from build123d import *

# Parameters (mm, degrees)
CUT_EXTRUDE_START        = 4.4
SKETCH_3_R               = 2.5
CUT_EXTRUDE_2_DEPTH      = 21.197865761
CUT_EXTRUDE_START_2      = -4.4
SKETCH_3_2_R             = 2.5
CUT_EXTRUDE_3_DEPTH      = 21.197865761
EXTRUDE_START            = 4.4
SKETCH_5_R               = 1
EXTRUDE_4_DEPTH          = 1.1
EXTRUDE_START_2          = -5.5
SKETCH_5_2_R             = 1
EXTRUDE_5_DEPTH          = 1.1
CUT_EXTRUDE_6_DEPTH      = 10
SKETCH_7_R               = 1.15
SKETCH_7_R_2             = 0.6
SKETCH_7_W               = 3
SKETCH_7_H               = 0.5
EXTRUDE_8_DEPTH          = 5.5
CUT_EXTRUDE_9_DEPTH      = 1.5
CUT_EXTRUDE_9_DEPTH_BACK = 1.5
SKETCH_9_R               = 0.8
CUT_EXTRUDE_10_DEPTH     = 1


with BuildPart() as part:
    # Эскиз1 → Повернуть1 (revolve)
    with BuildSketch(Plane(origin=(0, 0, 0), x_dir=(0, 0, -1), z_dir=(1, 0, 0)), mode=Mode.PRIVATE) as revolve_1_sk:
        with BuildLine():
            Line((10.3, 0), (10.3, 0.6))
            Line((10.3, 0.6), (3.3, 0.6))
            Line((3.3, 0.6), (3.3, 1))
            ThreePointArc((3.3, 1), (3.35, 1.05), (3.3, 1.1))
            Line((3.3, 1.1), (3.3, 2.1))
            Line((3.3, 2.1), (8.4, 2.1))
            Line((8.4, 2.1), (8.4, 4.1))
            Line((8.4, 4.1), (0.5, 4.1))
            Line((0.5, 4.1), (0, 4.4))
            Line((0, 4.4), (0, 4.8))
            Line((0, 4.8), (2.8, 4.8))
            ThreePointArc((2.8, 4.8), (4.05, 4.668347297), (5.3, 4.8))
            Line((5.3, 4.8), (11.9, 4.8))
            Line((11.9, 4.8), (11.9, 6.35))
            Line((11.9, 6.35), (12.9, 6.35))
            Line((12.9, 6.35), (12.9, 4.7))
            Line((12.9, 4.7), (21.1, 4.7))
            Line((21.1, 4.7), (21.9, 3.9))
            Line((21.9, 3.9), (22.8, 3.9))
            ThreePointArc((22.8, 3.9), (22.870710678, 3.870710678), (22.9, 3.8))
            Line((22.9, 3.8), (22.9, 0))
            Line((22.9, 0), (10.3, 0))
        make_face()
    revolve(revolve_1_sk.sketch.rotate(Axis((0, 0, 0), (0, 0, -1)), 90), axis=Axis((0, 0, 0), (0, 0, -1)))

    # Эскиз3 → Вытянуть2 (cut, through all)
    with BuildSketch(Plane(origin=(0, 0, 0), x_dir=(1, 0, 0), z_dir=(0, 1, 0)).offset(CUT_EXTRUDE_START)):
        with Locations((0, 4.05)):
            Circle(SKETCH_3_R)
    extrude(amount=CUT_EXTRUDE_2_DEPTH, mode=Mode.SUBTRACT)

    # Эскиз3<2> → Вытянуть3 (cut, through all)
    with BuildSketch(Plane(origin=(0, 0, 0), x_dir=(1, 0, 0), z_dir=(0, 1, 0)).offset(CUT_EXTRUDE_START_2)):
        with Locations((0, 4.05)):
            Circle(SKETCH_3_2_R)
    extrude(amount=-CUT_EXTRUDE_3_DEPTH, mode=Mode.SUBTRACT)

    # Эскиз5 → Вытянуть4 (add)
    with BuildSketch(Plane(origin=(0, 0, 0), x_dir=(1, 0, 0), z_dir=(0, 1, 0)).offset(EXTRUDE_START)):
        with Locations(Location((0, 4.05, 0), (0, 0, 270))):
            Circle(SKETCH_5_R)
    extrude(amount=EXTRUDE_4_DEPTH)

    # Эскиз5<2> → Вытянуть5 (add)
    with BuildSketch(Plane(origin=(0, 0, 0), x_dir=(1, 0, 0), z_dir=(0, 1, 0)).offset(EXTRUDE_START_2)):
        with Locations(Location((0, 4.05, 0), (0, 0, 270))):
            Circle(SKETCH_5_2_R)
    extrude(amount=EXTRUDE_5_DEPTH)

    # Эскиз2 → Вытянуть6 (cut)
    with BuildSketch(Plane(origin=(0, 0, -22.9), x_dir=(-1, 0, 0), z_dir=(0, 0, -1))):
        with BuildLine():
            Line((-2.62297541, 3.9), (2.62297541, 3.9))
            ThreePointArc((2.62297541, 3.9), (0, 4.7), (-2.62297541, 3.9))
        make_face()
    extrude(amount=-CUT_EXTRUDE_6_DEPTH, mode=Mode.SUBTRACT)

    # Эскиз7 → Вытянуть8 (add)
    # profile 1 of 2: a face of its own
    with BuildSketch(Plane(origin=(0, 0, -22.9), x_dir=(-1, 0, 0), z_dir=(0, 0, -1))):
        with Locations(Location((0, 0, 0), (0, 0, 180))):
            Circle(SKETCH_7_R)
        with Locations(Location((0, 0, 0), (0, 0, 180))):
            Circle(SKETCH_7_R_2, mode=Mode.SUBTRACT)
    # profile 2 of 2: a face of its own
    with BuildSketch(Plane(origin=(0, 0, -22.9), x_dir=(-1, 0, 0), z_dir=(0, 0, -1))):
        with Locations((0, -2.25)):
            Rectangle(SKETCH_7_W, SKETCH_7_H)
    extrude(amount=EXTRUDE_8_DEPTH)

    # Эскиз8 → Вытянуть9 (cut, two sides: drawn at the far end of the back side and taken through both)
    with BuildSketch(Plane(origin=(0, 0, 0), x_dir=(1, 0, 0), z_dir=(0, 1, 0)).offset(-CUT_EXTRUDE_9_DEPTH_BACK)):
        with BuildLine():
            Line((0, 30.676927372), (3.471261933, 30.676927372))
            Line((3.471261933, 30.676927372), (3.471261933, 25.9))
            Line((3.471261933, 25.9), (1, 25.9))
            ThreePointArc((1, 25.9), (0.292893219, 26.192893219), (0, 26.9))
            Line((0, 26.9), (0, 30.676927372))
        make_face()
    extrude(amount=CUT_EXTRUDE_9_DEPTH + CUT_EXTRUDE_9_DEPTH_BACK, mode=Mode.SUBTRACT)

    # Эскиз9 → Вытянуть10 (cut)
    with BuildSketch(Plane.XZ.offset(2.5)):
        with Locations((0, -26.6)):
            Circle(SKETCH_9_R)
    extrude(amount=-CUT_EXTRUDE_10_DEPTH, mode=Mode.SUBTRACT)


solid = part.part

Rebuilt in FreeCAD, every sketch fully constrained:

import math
import FreeCAD as App
import Part
import Sketcher
Q = App.Units.Quantity

doc = App.newDocument("Part")
params = doc.addObject("Spreadsheet::Sheet", "Params")
for row, (alias, value) in enumerate([
    ("sketch1_radius", "6 mm"),
    ("sketch1_radius2", "0.1 mm"),
    ("sketch1_width", "2 mm"),
    ("sketch1_width2", "1 mm"),
    ("sketch1_height", "7 mm"),
    ("revolution_angle", "360 deg"),
    ("sketch2_diameter", "5 mm"),
    ("sketch3_diameter", "5 mm"),
    ("sketch4_diameter", "2 mm"),
    ("pad1_length", "1.1 mm"),
    ("sketch5_diameter", "2 mm"),
    ("pad2_length", "1.1 mm"),
    ("sketch6_radius", "4.7 mm"),
    ("pocket3_length", "10 mm"),
    ("sketch7_diameter", "2.3 mm"),
    ("sketch7_diameter2", "1.2 mm"),
    ("sketch7_width", "3 mm"),
    ("sketch7_height", "0.5 mm"),
    ("pad3_length", "5.5 mm"),
    ("sketch8_radius", "1 mm"),
    ("pocket4_length", "1.5 mm"),
    ("pocket4_length2", "1.5 mm"),
    ("sketch9_diameter", "1.6 mm"),
    ("pocket5_length", "1 mm"),
], start=1):
    params.set(f"A{row}", alias)
    params.set(f"B{row}", "=" + value)
    params.setAlias(f"B{row}", alias)

body = doc.addObject("PartDesign::Body", "Body")

# Sketch on YZ plane
sketch1 = body.newObject("Sketcher::SketchObject", "Sketch")
sketch1.AttachmentSupport = (doc.getObject("YZ_Plane"), [""])
sketch1.MapMode = "FlatFace"
sketch1.addGeometry([
    Part.LineSegment(App.Vector(0.6, -10.3, 0), App.Vector(0, -10.3, 0)),  # 0
    Part.LineSegment(App.Vector(0, -10.3, 0), App.Vector(0, -22.9, 0)),  # 1
    Part.LineSegment(App.Vector(0, -22.9, 0), App.Vector(3.8, -22.9, 0)),  # 2
    Part.ArcOfCircle(Part.Circle(App.Vector(3.8, -22.8, 0), App.Vector(0, 0, 1), 0.1), math.radians(-90), math.radians(0)),  # 3
    Part.LineSegment(App.Vector(3.9, -22.8, 0), App.Vector(3.9, -21.9, 0)),  # 4
    Part.LineSegment(App.Vector(3.9, -21.9, 0), App.Vector(4.7, -21.1, 0)),  # 5
    Part.LineSegment(App.Vector(4.7, -21.1, 0), App.Vector(4.7, -12.9, 0)),  # 6
    Part.LineSegment(App.Vector(4.7, -12.9, 0), App.Vector(6.35, -12.9, 0)),  # 7
    Part.LineSegment(App.Vector(6.35, -12.9, 0), App.Vector(6.35, -11.9, 0)),  # 8
    Part.LineSegment(App.Vector(6.35, -11.9, 0), App.Vector(4.8, -11.9, 0)),  # 9
    Part.LineSegment(App.Vector(4.8, -11.9, 0), App.Vector(4.8, -5.3, 0)),  # 10
    Part.ArcOfCircle(Part.Circle(App.Vector(10.67, -4.05, 0), App.Vector(0, 0, 1), 6), math.radians(168), math.radians(192)),  # 11
    Part.LineSegment(App.Vector(4.8, -2.8, 0), App.Vector(4.8, 0, 0)),  # 12
    Part.LineSegment(App.Vector(4.8, 0, 0), App.Vector(4.4, 0, 0)),  # 13
    Part.LineSegment(App.Vector(4.4, 0, 0), App.Vector(4.1, -0.5, 0)),  # 14
    Part.LineSegment(App.Vector(4.1, -0.5, 0), App.Vector(4.1, -8.4, 0)),  # 15
    Part.LineSegment(App.Vector(4.1, -8.4, 0), App.Vector(2.1, -8.4, 0)),  # 16
    Part.LineSegment(App.Vector(2.1, -8.4, 0), App.Vector(2.1, -3.3, 0)),  # 17
    Part.LineSegment(App.Vector(2.1, -3.3, 0), App.Vector(1.1, -3.3, 0)),  # 18
    Part.ArcOfCircle(Part.Circle(App.Vector(1.05, -3.3, 0), App.Vector(0, 0, 1), 0.05), math.radians(180), math.radians(360)),  # 19
    Part.LineSegment(App.Vector(1, -3.3, 0), App.Vector(0.6, -3.3, 0)),  # 20
    Part.LineSegment(App.Vector(0.6, -3.3, 0), App.Vector(0.6, -10.3, 0)),  # 21
], False)
sketch1.addConstraint([
    Sketcher.Constraint("Coincident", 0, 2, 1, 1),
    Sketcher.Constraint("Coincident", 1, 2, 2, 1),
    Sketcher.Constraint("Tangent", 2, 2, 3, 1),
    Sketcher.Constraint("Tangent", 3, 2, 4, 1),
    Sketcher.Constraint("Coincident", 4, 2, 5, 1),
    Sketcher.Constraint("Coincident", 5, 2, 6, 1),
    Sketcher.Constraint("Coincident", 6, 2, 7, 1),
    Sketcher.Constraint("Coincident", 7, 2, 8, 1),
    Sketcher.Constraint("Coincident", 8, 2, 9, 1),
    Sketcher.Constraint("Coincident", 9, 2, 10, 1),
    Sketcher.Constraint("Coincident", 10, 2, 11, 2),
    Sketcher.Constraint("Coincident", 11, 1, 12, 1),
    Sketcher.Constraint("Coincident", 12, 2, 13, 1),
    Sketcher.Constraint("Coincident", 13, 2, 14, 1),
    Sketcher.Constraint("Coincident", 14, 2, 15, 1),
    Sketcher.Constraint("Coincident", 15, 2, 16, 1),
    Sketcher.Constraint("Coincident", 16, 2, 17, 1),
    Sketcher.Constraint("Coincident", 17, 2, 18, 1),
    Sketcher.Constraint("Coincident", 18, 2, 19, 2),
    Sketcher.Constraint("Coincident", 19, 1, 20, 1),
    Sketcher.Constraint("Coincident", 20, 2, 21, 1),
    Sketcher.Constraint("Coincident", 21, 2, 0, 1),
    Sketcher.Constraint("Horizontal", 0),
    Sketcher.Constraint("Vertical", 1),
    Sketcher.Constraint("Horizontal", 2),
    Sketcher.Constraint("Vertical", 4),
    Sketcher.Constraint("Vertical", 6),
    Sketcher.Constraint("Horizontal", 7),
    Sketcher.Constraint("Vertical", 8),
    Sketcher.Constraint("Horizontal", 9),
    Sketcher.Constraint("Vertical", 10),
    Sketcher.Constraint("Vertical", 12),
    Sketcher.Constraint("Horizontal", 13),
    Sketcher.Constraint("Vertical", 15),
    Sketcher.Constraint("Horizontal", 16),
    Sketcher.Constraint("Vertical", 17),
    Sketcher.Constraint("Horizontal", 18),
    Sketcher.Constraint("Horizontal", 20),
    Sketcher.Constraint("Vertical", 21),
    Sketcher.Constraint("PointOnObject", 0, 2, -2),
    Sketcher.Constraint("PointOnObject", 12, 2, -1),
    Sketcher.Constraint("Horizontal", 19, 3, 17, 2),
    Sketcher.Constraint("Horizontal", 18, 2, 19, 1),
    Sketcher.Constraint("Vertical", 10, 2, 11, 1),
    Sketcher.Constraint("Equal", 13, 20),
    Sketcher.Constraint("Equal", 18, 8),
    Sketcher.Constraint("Radius", 11, Q("6 mm")),
    Sketcher.Constraint("Radius", 3, Q("0.1 mm")),
    Sketcher.Constraint("DistanceX", 16, 2, 16, 1, Q("2 mm")),
    Sketcher.Constraint("DistanceX", 18, 2, 18, 1, Q("1 mm")),
    Sketcher.Constraint("DistanceY", 21, 2, 21, 1, Q("7 mm")),
    Sketcher.Constraint("Angle", 5, Q("45 deg")),
    Sketcher.Constraint("Radius", 19, Q("0.05 mm")),
    Sketcher.Constraint("DistanceX", 0, 2, 0, 1, Q("0.6 mm")),
    Sketcher.Constraint("DistanceX", 2, 1, 2, 2, Q("3.8 mm")),
    Sketcher.Constraint("DistanceX", 13, 2, 13, 1, Q("0.4 mm")),
    Sketcher.Constraint("DistanceY", 1, 2, 1, 1, Q("12.6 mm")),
    Sketcher.Constraint("DistanceY", 4, 1, 4, 2, Q("0.9 mm")),
    Sketcher.Constraint("DistanceY", 6, 1, 6, 2, Q("8.2 mm")),
    Sketcher.Constraint("DistanceY", 10, 1, 10, 2, Q("6.6 mm")),
    Sketcher.Constraint("DistanceY", 12, 1, 12, 2, Q("2.8 mm")),
    Sketcher.Constraint("DistanceY", 15, 2, 15, 1, Q("7.9 mm")),
    Sketcher.Constraint("DistanceY", 17, 1, 17, 2, Q("5.1 mm")),
    Sketcher.Constraint("DistanceY", 4, 2, 6, 2, Q("9 mm")),
    Sketcher.Constraint("DistanceX", 7, 1, 7, 2, Q("1.65 mm")),
    Sketcher.Constraint("DistanceX", 9, 2, 9, 1, Q("1.55 mm")),
    Sketcher.Constraint("DistanceY", 3, 3, -1, 1, Q("22.8 mm")),
])
sketch1.setExpression("Constraints[46]", "Params.sketch1_radius")
sketch1.setExpression("Constraints[47]", "Params.sketch1_radius2")
sketch1.setExpression("Constraints[48]", "Params.sketch1_width")
sketch1.setExpression("Constraints[49]", "Params.sketch1_width2")
sketch1.setExpression("Constraints[50]", "Params.sketch1_height")
revolution = body.newObject("PartDesign::Revolution", "Revolution")
revolution.Profile = sketch1
revolution.ReferenceAxis = (sketch1, ["V_Axis"])
revolution.setExpression("Angle", "Params.revolution_angle")

# Sketch on XZ plane
sketch2 = body.newObject("Sketcher::SketchObject", "Sketch001")
sketch2.AttachmentSupport = (doc.getObject("XZ_Plane"), [""])
sketch2.MapMode = "FlatFace"
sketch2.AttachmentOffset = App.Placement(App.Vector(0, 0, -4.4), App.Rotation())
sketch2.addGeometry(Part.Circle(App.Vector(0, -4, 0), App.Vector(0, 0, 1), 2.5), False)
sketch2.addConstraint([
    Sketcher.Constraint("PointOnObject", 0, 3, -2),
    Sketcher.Constraint("Diameter", 0, Q("5 mm")),
    Sketcher.Constraint("DistanceY", 0, 3, -1, 1, Q("4.05 mm")),
])
sketch2.setExpression("Constraints[1]", "Params.sketch2_diameter")
pocket1 = body.newObject("PartDesign::Pocket", "Pocket")
pocket1.Profile = sketch2
pocket1.Type = "ThroughAll"

# Sketch on XZ plane
sketch3 = body.newObject("Sketcher::SketchObject", "Sketch002")
sketch3.AttachmentSupport = (doc.getObject("XZ_Plane"), [""])
sketch3.MapMode = "FlatFace"
sketch3.AttachmentOffset = App.Placement(App.Vector(0, 0, 4.4), App.Rotation())
sketch3.addGeometry(Part.Circle(App.Vector(0, -4, 0), App.Vector(0, 0, 1), 2.5), False)
sketch3.addConstraint([
    Sketcher.Constraint("PointOnObject", 0, 3, -2),
    Sketcher.Constraint("Diameter", 0, Q("5 mm")),
    Sketcher.Constraint("DistanceY", 0, 3, -1, 1, Q("4.05 mm")),
])
sketch3.setExpression("Constraints[1]", "Params.sketch3_diameter")
pocket2 = body.newObject("PartDesign::Pocket", "Pocket001")
pocket2.Profile = sketch3
pocket2.Type = "ThroughAll"
pocket2.Reversed = True

# Sketch on XZ plane
sketch4 = body.newObject("Sketcher::SketchObject", "Sketch003")
sketch4.AttachmentSupport = (doc.getObject("XZ_Plane"), [""])
sketch4.MapMode = "FlatFace"
sketch4.AttachmentOffset = App.Placement(App.Vector(0, 0, -4.4), App.Rotation())
sketch4.addGeometry(Part.Circle(App.Vector(0, -4, 0), App.Vector(0, 0, 1), 1), False)
sketch4.addConstraint([
    Sketcher.Constraint("PointOnObject", 0, 3, -2),
    Sketcher.Constraint("Diameter", 0, Q("2 mm")),
    Sketcher.Constraint("DistanceY", 0, 3, -1, 1, Q("4.05 mm")),
])
sketch4.setExpression("Constraints[1]", "Params.sketch4_diameter")
pad1 = body.newObject("PartDesign::Pad", "Pad")
pad1.Profile = sketch4
pad1.setExpression("Length", "Params.pad1_length")
pad1.Reversed = True

# Sketch on XZ plane
sketch5 = body.newObject("Sketcher::SketchObject", "Sketch004")
sketch5.AttachmentSupport = (doc.getObject("XZ_Plane"), [""])
sketch5.MapMode = "FlatFace"
sketch5.AttachmentOffset = App.Placement(App.Vector(0, 0, 5.5), App.Rotation())
sketch5.addGeometry(Part.Circle(App.Vector(0, -4, 0), App.Vector(0, 0, 1), 1), False)
sketch5.addConstraint([
    Sketcher.Constraint("PointOnObject", 0, 3, -2),
    Sketcher.Constraint("Diameter", 0, Q("2 mm")),
    Sketcher.Constraint("DistanceY", 0, 3, -1, 1, Q("4.05 mm")),
])
sketch5.setExpression("Constraints[1]", "Params.sketch5_diameter")
pad2 = body.newObject("PartDesign::Pad", "Pad001")
pad2.Profile = sketch5
pad2.setExpression("Length", "Params.pad2_length")
pad2.Reversed = True

# Sketch on XY plane
sketch6 = body.newObject("Sketcher::SketchObject", "Sketch005")
sketch6.AttachmentSupport = (doc.getObject("XY_Plane"), [""])
sketch6.MapMode = "FlatFace"
sketch6.AttachmentOffset = App.Placement(App.Vector(0, 0, -22.9), App.Rotation())
sketch6.addGeometry([
    Part.LineSegment(App.Vector(2.6, 3.9, 0), App.Vector(-2.6, 3.9, 0)),
    Part.ArcOfCircle(Part.Circle(App.Vector(0, 0, 0), App.Vector(0, 0, 1), 4.7), math.radians(56), math.radians(124)),
], False)
sketch6.addConstraint([
    Sketcher.Constraint("Coincident", 0, 1, 1, 1),
    Sketcher.Constraint("Coincident", 1, 2, 0, 2),
    Sketcher.Constraint("Horizontal", 0),
    Sketcher.Constraint("Coincident", 1, 3, -1, 1),
    Sketcher.Constraint("Radius", 1, Q("4.7 mm")),
    Sketcher.Constraint("DistanceY", -1, 1, 0, 1, Q("3.9 mm")),
])
sketch6.setExpression("Constraints[4]", "Params.sketch6_radius")
pocket3 = body.newObject("PartDesign::Pocket", "Pocket002")
pocket3.Profile = sketch6
pocket3.setExpression("Length", "Params.pocket3_length")
pocket3.Reversed = True

# Sketch on XY plane
sketch7 = body.newObject("Sketcher::SketchObject", "Sketch006")
sketch7.AttachmentSupport = (doc.getObject("XY_Plane"), [""])
sketch7.MapMode = "FlatFace"
sketch7.AttachmentOffset = App.Placement(App.Vector(0, 0, -22.9), App.Rotation())
sketch7.addGeometry([
    Part.Circle(App.Vector(0, 0, 0), App.Vector(0, 0, 1), 1.1),  # 0
    Part.Circle(App.Vector(0, 0, 0), App.Vector(0, 0, 1), 0.6),  # 1
    Part.LineSegment(App.Vector(1.5, -2, 0), App.Vector(1.5, -2.5, 0)),  # 2
    Part.LineSegment(App.Vector(1.5, -2.5, 0), App.Vector(-1.5, -2.5, 0)),  # 3
    Part.LineSegment(App.Vector(-1.5, -2.5, 0), App.Vector(-1.5, -2, 0)),  # 4
    Part.LineSegment(App.Vector(-1.5, -2, 0), App.Vector(1.5, -2, 0)),  # 5
], False)
sketch7.addConstraint([
    Sketcher.Constraint("Coincident", 2, 2, 3, 1),
    Sketcher.Constraint("Coincident", 3, 2, 4, 1),
    Sketcher.Constraint("Coincident", 4, 2, 5, 1),
    Sketcher.Constraint("Coincident", 5, 2, 2, 1),
    Sketcher.Constraint("Vertical", 2),
    Sketcher.Constraint("Horizontal", 3),
    Sketcher.Constraint("Vertical", 4),
    Sketcher.Constraint("Horizontal", 5),
    Sketcher.Constraint("Coincident", 0, 3, -1, 1),
    Sketcher.Constraint("Coincident", 1, 3, -1, 1),
    Sketcher.Constraint("Diameter", 0, Q("2.3 mm")),
    Sketcher.Constraint("Diameter", 1, Q("1.2 mm")),
    Sketcher.Constraint("DistanceX", 3, 2, 3, 1, Q("3 mm")),
    Sketcher.Constraint("DistanceY", 2, 2, 2, 1, Q("0.5 mm")),
    Sketcher.Constraint("DistanceY", 4, 2, -1, 1, Q("2 mm")),
    Sketcher.Constraint("DistanceX", -1, 1, 2, 2, Q("1.5 mm")),
])
sketch7.setExpression("Constraints[10]", "Params.sketch7_diameter")
sketch7.setExpression("Constraints[11]", "Params.sketch7_diameter2")
sketch7.setExpression("Constraints[12]", "Params.sketch7_width")
sketch7.setExpression("Constraints[13]", "Params.sketch7_height")
pad3 = body.newObject("PartDesign::Pad", "Pad002")
pad3.Profile = sketch7
pad3.setExpression("Length", "Params.pad3_length")
pad3.Reversed = True

# Sketch on XZ plane
sketch8 = body.newObject("Sketcher::SketchObject", "Sketch007")
sketch8.AttachmentSupport = (doc.getObject("XZ_Plane"), [""])
sketch8.MapMode = "FlatFace"
sketch8.addGeometry([
    Part.LineSegment(App.Vector(3.5, -30.7, 0), App.Vector(0, -30.7, 0)),  # 0
    Part.LineSegment(App.Vector(0, -30.7, 0), App.Vector(0, -26.9, 0)),  # 1
    Part.ArcOfCircle(Part.Circle(App.Vector(1, -26.9, 0), App.Vector(0, 0, 1), 1), math.radians(90), math.radians(180)),  # 2
    Part.LineSegment(App.Vector(1, -25.9, 0), App.Vector(3.5, -25.9, 0)),  # 3
    Part.LineSegment(App.Vector(3.5, -25.9, 0), App.Vector(3.5, -30.7, 0)),  # 4
], False)
sketch8.addConstraint([
    Sketcher.Constraint("Coincident", 0, 2, 1, 1),
    Sketcher.Constraint("Tangent", 1, 2, 2, 2),
    Sketcher.Constraint("Tangent", 2, 1, 3, 1),
    Sketcher.Constraint("Coincident", 3, 2, 4, 1),
    Sketcher.Constraint("Coincident", 4, 2, 0, 1),
    Sketcher.Constraint("Horizontal", 0),
    Sketcher.Constraint("Vertical", 1),
    Sketcher.Constraint("Horizontal", 3),
    Sketcher.Constraint("Vertical", 4),
    Sketcher.Constraint("PointOnObject", 0, 2, -2),
    Sketcher.Constraint("Radius", 2, Q("1 mm")),
    Sketcher.Constraint("DistanceY", 2, 3, -1, 1, Q("26.9 mm")),
    Sketcher.Constraint("DistanceX", 0, 2, 0, 1, Q("3.471262 mm")),
    Sketcher.Constraint("DistanceY", 1, 1, 1, 2, Q("3.776927 mm")),
])
sketch8.setExpression("Constraints[10]", "Params.sketch8_radius")
pocket4 = body.newObject("PartDesign::Pocket", "Pocket003")
pocket4.Profile = sketch8
pocket4.Type = "TwoLengths"
pocket4.setExpression("Length", "Params.pocket4_length")
pocket4.setExpression("Length2", "Params.pocket4_length2")

# Sketch on XZ plane
sketch9 = body.newObject("Sketcher::SketchObject", "Sketch008")
sketch9.AttachmentSupport = (doc.getObject("XZ_Plane"), [""])
sketch9.MapMode = "FlatFace"
sketch9.AttachmentOffset = App.Placement(App.Vector(0, 0, 2.5), App.Rotation())
sketch9.addGeometry(Part.Circle(App.Vector(0, -26.6, 0), App.Vector(0, 0, 1), 0.8), False)
sketch9.addConstraint([
    Sketcher.Constraint("PointOnObject", 0, 3, -2),
    Sketcher.Constraint("Diameter", 0, Q("1.6 mm")),
    Sketcher.Constraint("DistanceY", 0, 3, -1, 1, Q("26.6 mm")),
])
sketch9.setExpression("Constraints[1]", "Params.sketch9_diameter")
pocket5 = body.newObject("PartDesign::Pocket", "Pocket004")
pocket5.Profile = sketch9
pocket5.setExpression("Length", "Params.pocket5_length")

doc.recompute()
